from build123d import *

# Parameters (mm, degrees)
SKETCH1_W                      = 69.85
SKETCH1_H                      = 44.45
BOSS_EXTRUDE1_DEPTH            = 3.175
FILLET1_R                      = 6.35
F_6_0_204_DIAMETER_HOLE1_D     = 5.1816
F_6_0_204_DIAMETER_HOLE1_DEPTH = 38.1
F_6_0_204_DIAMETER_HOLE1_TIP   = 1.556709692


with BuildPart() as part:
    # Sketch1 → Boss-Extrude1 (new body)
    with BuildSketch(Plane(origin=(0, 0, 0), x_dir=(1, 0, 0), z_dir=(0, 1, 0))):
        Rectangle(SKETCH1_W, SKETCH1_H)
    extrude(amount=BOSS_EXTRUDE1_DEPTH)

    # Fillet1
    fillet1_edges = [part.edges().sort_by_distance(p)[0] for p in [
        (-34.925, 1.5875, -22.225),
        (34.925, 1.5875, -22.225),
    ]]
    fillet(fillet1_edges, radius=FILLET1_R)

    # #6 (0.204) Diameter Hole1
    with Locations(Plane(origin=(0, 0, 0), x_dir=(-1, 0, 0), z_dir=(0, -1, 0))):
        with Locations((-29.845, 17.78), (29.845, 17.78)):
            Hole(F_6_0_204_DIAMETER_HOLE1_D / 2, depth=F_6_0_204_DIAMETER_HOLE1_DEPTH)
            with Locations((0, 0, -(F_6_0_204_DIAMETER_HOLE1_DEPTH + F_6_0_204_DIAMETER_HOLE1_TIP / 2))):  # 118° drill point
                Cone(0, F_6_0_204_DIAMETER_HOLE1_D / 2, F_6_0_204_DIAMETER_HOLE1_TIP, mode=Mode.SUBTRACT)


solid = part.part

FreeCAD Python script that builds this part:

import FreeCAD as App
import Part
import Sketcher
from FreeCAD import Vector
Q = App.Units.Quantity


def edges_at(feature, points):
    """Names of the edges that pass closest to the given points."""
    edges = feature.Shape.Edges
    near = lambda p: min(range(len(edges)), key=lambda i: edges[i].distToShape(Part.Vertex(*p))[0])
    return sorted({f"Edge{near(p) + 1}" for p in points})

doc = App.newDocument("Part")
body = doc.addObject("PartDesign::Body", "Body")

# Sketch on XZ plane
sketch1 = doc.addObject("Sketcher::SketchObject", "Sketch")
body.addObject(sketch1)
sketch1.AttachmentSupport = (doc.XZ_Plane, [""])
sketch1.MapMode = "FlatFace"
sketch1.addGeometry([
    Part.LineSegment(Vector(-34.925, -22.225, 0), Vector(-34.925, 22.225, 0)),
    Part.LineSegment(Vector(-34.925, 22.225, 0), Vector(34.925, 22.225, 0)),
    Part.LineSegment(Vector(34.925, 22.225, 0), Vector(34.925, -22.225, 0)),
    Part.LineSegment(Vector(34.925, -22.225, 0), Vector(-34.925, -22.225, 0)),
], False)
sketch1.addConstraint([
    Sketcher.Constraint("Coincident", 0, 2, 1, 1),
    Sketcher.Constraint("Coincident", 1, 2, 2, 1),
    Sketcher.Constraint("Coincident", 2, 2, 3, 1),
    Sketcher.Constraint("Coincident", 3, 2, 0, 1),
    Sketcher.Constraint("Vertical", 0),
    Sketcher.Constraint("Horizontal", 1),
    Sketcher.Constraint("Vertical", 2),
    Sketcher.Constraint("Horizontal", 3),
    Sketcher.Constraint("Symmetric", 0, 2, 2, 2, -1, 1),
    Sketcher.Constraint("DistanceX", 1, 1, 1, 2, Q("2.75 in")),
    Sketcher.Constraint("DistanceY", 0, 1, 0, 2, Q("1.75 in")),
])
pad1 = doc.addObject("PartDesign::Pad", "Pad")
body.addObject(pad1)
pad1.Profile = sketch1
pad1.Length = Q("0.125 in")
pad1.Reversed = True
doc.recompute()

fillet = doc.addObject("PartDesign::Fillet", "Fillet")
body.addObject(fillet)
fillet.Base = (pad1, edges_at(pad1, [(-34.925, 1.587, -22.225), (34.925, 1.587, -22.225)]))
fillet.Radius = Q("0.25 in")

# Sketch on XZ plane
sketch2 = doc.addObject("Sketcher::SketchObject", "Sketch001")
body.addObject(sketch2)
sketch2.AttachmentSupport = (doc.XZ_Plane, [""])
sketch2.MapMode = "FlatFace"
sketch2.addGeometry([
    Part.Circle(Vector(29.845, -17.78, 0), Vector(0, 0, 1), 2.5908),
    Part.Circle(Vector(-29.845, -17.78, 0), Vector(0, 0, 1), 2.5908),
], False)
sketch2.addConstraint([
    Sketcher.Constraint("Equal", 0, 1),
    Sketcher.Constraint("Symmetric", 0, 3, 1, 3, -2),
    Sketcher.Constraint("Diameter", 0, Q("0.204 in")),
    Sketcher.Constraint("DistanceY", 0, 3, -1, 1, Q("0.7 in")),
    Sketcher.Constraint("DistanceX", 1, 3, 0, 3, Q("2.35 in")),
])
doc.recompute()
hole = doc.addObject("PartDesign::Hole", "Hole")
body.addObject(hole)
hole.Profile = sketch2
hole.ThreadType = "None"
hole.Diameter = Q("0.204 in")
hole.DepthType = "Dimension"
hole.Depth = Q("1.5 in")
hole.DrillPoint = "Angled"
hole.DrillPointAngle = 118

doc.recompute()
